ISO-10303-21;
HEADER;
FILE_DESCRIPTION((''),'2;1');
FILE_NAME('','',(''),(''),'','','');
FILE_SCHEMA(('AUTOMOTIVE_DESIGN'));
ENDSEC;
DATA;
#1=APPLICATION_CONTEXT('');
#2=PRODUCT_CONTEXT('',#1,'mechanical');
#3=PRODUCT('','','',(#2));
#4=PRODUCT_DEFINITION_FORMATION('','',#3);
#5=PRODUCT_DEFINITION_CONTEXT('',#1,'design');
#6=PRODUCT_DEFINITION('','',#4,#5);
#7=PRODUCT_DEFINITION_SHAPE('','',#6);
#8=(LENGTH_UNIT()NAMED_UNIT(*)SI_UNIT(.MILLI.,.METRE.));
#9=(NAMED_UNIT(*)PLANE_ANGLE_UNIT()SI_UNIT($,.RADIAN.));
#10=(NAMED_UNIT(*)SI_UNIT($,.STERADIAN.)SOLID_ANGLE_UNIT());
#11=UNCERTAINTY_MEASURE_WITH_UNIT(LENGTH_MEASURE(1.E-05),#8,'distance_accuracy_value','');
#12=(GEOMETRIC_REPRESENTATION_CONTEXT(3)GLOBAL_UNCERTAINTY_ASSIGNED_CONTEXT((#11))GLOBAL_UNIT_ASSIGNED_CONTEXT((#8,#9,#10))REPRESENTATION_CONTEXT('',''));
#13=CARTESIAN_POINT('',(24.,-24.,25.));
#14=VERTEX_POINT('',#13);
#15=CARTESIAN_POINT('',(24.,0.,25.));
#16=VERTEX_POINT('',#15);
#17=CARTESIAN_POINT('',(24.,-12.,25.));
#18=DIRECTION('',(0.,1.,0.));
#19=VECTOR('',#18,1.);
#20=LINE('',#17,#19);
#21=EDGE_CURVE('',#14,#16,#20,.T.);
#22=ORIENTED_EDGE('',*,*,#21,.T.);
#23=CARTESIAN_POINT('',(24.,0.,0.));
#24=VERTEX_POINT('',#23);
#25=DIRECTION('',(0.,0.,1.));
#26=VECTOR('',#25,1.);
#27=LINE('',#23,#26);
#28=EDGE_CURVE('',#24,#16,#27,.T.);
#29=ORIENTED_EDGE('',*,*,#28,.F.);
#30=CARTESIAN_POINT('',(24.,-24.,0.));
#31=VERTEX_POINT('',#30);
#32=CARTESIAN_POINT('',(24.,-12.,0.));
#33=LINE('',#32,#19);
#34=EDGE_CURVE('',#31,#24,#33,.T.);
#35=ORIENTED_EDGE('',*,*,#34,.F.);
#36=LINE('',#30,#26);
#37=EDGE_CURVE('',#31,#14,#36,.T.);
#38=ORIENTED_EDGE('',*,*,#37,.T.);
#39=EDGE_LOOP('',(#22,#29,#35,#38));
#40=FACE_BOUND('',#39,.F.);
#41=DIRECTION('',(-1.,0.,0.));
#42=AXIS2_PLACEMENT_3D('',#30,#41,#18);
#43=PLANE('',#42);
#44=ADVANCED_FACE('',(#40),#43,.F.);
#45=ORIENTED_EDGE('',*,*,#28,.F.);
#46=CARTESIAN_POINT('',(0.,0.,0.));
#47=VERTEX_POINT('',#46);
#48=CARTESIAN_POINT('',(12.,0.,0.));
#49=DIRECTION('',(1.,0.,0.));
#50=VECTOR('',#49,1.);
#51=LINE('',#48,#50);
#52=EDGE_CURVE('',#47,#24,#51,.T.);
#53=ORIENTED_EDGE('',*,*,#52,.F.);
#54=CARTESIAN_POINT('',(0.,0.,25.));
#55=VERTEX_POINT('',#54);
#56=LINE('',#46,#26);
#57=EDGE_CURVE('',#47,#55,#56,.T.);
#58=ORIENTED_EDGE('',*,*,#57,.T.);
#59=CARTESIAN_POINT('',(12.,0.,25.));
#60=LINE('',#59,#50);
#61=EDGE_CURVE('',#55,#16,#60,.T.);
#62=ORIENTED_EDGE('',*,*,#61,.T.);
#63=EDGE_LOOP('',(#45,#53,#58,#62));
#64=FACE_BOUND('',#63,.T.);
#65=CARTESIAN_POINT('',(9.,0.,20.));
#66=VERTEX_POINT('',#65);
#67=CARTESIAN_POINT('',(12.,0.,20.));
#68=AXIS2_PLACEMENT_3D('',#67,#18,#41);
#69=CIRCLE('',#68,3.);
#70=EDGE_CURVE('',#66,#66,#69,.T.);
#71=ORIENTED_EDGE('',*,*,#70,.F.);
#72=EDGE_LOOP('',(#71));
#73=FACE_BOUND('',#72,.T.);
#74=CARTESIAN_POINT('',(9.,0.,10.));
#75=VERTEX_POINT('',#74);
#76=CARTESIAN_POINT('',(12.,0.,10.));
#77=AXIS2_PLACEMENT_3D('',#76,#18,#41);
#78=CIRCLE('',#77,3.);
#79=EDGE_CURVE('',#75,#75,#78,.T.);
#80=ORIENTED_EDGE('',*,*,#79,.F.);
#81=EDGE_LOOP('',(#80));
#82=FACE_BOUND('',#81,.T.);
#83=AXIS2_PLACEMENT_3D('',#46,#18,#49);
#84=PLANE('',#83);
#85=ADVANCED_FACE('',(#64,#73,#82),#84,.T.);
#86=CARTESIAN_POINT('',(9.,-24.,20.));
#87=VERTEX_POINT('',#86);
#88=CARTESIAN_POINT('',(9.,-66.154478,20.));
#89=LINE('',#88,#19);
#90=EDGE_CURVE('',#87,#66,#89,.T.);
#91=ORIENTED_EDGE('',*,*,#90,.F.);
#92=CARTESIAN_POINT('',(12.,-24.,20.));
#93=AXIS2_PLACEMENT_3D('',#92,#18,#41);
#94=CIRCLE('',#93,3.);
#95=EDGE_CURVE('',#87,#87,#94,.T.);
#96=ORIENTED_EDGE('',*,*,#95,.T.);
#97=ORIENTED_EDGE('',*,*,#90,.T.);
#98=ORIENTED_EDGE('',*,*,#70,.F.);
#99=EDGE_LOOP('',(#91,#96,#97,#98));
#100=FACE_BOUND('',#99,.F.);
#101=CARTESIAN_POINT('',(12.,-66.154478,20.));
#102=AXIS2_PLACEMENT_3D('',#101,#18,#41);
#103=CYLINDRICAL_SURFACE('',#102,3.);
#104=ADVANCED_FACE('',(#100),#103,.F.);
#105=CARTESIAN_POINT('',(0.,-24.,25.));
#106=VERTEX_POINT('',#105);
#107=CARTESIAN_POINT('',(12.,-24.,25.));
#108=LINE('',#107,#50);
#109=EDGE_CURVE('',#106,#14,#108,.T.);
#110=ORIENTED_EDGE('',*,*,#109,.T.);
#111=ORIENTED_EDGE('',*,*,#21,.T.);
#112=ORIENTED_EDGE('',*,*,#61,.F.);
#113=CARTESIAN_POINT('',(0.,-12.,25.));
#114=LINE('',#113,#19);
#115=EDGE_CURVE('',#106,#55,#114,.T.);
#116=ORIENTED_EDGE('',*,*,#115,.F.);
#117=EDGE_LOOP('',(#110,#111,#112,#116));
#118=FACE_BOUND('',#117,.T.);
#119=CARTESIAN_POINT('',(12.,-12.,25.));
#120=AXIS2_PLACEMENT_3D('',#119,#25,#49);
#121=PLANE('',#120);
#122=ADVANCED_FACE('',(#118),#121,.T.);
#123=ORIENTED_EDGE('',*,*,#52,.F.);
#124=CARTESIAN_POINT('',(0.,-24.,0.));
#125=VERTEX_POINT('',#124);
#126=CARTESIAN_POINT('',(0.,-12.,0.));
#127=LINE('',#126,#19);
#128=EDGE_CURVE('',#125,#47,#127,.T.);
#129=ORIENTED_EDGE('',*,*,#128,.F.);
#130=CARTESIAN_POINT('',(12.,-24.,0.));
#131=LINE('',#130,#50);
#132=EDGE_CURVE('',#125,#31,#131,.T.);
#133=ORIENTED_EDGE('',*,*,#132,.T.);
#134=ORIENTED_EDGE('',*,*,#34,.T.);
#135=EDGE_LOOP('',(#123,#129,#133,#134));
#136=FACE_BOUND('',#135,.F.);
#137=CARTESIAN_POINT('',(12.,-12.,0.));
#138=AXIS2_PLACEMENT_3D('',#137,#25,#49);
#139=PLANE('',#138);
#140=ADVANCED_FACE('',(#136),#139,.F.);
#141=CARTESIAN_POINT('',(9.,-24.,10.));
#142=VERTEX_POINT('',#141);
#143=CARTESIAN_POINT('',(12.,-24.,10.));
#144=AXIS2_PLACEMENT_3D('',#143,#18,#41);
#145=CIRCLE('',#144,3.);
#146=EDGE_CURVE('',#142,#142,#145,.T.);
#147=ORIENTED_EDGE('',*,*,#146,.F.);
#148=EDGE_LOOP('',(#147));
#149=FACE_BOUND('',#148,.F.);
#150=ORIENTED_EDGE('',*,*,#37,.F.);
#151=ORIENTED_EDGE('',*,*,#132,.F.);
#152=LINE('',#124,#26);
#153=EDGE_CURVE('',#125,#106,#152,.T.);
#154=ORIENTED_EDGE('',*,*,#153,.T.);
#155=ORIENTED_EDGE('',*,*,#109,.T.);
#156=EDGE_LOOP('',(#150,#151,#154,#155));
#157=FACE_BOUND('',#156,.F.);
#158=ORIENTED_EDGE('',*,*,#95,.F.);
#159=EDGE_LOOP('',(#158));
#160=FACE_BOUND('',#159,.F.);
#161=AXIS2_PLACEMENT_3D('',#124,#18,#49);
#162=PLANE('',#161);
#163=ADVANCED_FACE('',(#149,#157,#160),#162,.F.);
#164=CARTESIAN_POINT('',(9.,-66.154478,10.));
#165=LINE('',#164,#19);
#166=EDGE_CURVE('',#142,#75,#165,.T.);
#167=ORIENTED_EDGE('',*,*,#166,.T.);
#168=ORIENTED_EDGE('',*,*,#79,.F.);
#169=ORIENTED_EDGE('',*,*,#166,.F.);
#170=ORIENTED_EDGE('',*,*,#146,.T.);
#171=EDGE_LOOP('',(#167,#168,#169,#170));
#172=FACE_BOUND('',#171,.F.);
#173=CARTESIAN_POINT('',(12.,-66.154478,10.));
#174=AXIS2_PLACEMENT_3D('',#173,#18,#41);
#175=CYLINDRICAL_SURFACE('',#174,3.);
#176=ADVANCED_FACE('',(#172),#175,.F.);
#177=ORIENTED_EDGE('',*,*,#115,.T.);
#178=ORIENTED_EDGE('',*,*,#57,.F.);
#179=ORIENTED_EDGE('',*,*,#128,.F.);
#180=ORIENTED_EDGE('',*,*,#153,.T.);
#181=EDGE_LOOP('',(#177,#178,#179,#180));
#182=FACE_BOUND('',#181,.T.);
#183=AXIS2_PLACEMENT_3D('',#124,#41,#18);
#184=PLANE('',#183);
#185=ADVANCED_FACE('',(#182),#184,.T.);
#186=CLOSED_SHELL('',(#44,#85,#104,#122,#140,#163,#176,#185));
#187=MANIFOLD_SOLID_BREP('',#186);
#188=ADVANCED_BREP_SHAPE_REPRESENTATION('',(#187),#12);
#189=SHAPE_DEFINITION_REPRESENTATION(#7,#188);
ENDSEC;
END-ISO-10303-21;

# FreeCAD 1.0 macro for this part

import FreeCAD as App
import Part
import Sketcher


def add_polygon(sketch, points):
    """Adds a closed chain of lines whose ends are joined by coincident constraints."""
    first, n = sketch.GeometryCount, len(points)
    for a, b in zip(points, points[1:] + points[:1]):
        sketch.addGeometry(Part.LineSegment(App.Vector(*a, 0), App.Vector(*b, 0)), False)
    for i in range(n):
        sketch.addConstraint(Sketcher.Constraint("Coincident", first + i, 2, first + (i + 1) % n, 1))

doc = App.newDocument("Part")
body = doc.addObject("PartDesign::Body", "Body")

sketch1 = body.newObject("Sketcher::SketchObject", "Sketch")
sketch1.AttachmentSupport = (doc.getObject("XY_Plane"), [""])
sketch1.MapMode = "FlatFace"
add_polygon(sketch1, [(0, 0), (0, -24), (24, -24), (24, 0)])
sketch1.addConstraint(Sketcher.Constraint("Vertical", 0))
sketch1.addConstraint(Sketcher.Constraint("Horizontal", 1))
sketch1.addConstraint(Sketcher.Constraint("Vertical", 2))
sketch1.addConstraint(Sketcher.Constraint("Horizontal", 3))
sketch1.addConstraint(Sketcher.Constraint("Coincident", 3, 2, -1, 1))
sketch1.addConstraint(Sketcher.Constraint("Equal", 3, 0))
sketch1.addConstraint(Sketcher.Constraint("DistanceX", 1, 1, 1, 2, 24.0))
pad1 = body.newObject("PartDesign::Pad", "Pad")
pad1.Profile = sketch1
pad1.Length = 25

sketch2 = body.newObject("Sketcher::SketchObject", "Sketch001")
sketch2.AttachmentSupport = (doc.getObject("XZ_Plane"), [""])
sketch2.MapMode = "FlatFace"
sketch2.AttachmentOffset = App.Placement(App.Vector(0, 0, 24), App.Rotation())
sketch2.addGeometry(Part.Circle(App.Vector(12, 20, 0), App.Vector(0, 0, 1), 3), False)
sketch2.addGeometry(Part.Circle(App.Vector(12, 10, 0), App.Vector(0, 0, 1), 3), False)
sketch2.addConstraint(Sketcher.Constraint("Equal", 0, 1))
sketch2.addConstraint(Sketcher.Constraint("Vertical", 0, 3, 1, 3))
sketch2.addConstraint(Sketcher.Constraint("Diameter", 0, 6.0))
sketch2.addConstraint(Sketcher.Constraint("DistanceX", -1, 1, 0, 3, 12.0))
sketch2.addConstraint(Sketcher.Constraint("DistanceY", -1, 1, 0, 3, 20.0))
sketch2.addConstraint(Sketcher.Constraint("DistanceY", -1, 1, 1, 3, 10.0))
doc.recompute()
hole = body.newObject("PartDesign::Hole", "Hole")
hole.Profile = sketch2
hole.ThreadType = "None"
hole.Diameter = 6
hole.DepthType = "ThroughAll"

doc.recompute()
